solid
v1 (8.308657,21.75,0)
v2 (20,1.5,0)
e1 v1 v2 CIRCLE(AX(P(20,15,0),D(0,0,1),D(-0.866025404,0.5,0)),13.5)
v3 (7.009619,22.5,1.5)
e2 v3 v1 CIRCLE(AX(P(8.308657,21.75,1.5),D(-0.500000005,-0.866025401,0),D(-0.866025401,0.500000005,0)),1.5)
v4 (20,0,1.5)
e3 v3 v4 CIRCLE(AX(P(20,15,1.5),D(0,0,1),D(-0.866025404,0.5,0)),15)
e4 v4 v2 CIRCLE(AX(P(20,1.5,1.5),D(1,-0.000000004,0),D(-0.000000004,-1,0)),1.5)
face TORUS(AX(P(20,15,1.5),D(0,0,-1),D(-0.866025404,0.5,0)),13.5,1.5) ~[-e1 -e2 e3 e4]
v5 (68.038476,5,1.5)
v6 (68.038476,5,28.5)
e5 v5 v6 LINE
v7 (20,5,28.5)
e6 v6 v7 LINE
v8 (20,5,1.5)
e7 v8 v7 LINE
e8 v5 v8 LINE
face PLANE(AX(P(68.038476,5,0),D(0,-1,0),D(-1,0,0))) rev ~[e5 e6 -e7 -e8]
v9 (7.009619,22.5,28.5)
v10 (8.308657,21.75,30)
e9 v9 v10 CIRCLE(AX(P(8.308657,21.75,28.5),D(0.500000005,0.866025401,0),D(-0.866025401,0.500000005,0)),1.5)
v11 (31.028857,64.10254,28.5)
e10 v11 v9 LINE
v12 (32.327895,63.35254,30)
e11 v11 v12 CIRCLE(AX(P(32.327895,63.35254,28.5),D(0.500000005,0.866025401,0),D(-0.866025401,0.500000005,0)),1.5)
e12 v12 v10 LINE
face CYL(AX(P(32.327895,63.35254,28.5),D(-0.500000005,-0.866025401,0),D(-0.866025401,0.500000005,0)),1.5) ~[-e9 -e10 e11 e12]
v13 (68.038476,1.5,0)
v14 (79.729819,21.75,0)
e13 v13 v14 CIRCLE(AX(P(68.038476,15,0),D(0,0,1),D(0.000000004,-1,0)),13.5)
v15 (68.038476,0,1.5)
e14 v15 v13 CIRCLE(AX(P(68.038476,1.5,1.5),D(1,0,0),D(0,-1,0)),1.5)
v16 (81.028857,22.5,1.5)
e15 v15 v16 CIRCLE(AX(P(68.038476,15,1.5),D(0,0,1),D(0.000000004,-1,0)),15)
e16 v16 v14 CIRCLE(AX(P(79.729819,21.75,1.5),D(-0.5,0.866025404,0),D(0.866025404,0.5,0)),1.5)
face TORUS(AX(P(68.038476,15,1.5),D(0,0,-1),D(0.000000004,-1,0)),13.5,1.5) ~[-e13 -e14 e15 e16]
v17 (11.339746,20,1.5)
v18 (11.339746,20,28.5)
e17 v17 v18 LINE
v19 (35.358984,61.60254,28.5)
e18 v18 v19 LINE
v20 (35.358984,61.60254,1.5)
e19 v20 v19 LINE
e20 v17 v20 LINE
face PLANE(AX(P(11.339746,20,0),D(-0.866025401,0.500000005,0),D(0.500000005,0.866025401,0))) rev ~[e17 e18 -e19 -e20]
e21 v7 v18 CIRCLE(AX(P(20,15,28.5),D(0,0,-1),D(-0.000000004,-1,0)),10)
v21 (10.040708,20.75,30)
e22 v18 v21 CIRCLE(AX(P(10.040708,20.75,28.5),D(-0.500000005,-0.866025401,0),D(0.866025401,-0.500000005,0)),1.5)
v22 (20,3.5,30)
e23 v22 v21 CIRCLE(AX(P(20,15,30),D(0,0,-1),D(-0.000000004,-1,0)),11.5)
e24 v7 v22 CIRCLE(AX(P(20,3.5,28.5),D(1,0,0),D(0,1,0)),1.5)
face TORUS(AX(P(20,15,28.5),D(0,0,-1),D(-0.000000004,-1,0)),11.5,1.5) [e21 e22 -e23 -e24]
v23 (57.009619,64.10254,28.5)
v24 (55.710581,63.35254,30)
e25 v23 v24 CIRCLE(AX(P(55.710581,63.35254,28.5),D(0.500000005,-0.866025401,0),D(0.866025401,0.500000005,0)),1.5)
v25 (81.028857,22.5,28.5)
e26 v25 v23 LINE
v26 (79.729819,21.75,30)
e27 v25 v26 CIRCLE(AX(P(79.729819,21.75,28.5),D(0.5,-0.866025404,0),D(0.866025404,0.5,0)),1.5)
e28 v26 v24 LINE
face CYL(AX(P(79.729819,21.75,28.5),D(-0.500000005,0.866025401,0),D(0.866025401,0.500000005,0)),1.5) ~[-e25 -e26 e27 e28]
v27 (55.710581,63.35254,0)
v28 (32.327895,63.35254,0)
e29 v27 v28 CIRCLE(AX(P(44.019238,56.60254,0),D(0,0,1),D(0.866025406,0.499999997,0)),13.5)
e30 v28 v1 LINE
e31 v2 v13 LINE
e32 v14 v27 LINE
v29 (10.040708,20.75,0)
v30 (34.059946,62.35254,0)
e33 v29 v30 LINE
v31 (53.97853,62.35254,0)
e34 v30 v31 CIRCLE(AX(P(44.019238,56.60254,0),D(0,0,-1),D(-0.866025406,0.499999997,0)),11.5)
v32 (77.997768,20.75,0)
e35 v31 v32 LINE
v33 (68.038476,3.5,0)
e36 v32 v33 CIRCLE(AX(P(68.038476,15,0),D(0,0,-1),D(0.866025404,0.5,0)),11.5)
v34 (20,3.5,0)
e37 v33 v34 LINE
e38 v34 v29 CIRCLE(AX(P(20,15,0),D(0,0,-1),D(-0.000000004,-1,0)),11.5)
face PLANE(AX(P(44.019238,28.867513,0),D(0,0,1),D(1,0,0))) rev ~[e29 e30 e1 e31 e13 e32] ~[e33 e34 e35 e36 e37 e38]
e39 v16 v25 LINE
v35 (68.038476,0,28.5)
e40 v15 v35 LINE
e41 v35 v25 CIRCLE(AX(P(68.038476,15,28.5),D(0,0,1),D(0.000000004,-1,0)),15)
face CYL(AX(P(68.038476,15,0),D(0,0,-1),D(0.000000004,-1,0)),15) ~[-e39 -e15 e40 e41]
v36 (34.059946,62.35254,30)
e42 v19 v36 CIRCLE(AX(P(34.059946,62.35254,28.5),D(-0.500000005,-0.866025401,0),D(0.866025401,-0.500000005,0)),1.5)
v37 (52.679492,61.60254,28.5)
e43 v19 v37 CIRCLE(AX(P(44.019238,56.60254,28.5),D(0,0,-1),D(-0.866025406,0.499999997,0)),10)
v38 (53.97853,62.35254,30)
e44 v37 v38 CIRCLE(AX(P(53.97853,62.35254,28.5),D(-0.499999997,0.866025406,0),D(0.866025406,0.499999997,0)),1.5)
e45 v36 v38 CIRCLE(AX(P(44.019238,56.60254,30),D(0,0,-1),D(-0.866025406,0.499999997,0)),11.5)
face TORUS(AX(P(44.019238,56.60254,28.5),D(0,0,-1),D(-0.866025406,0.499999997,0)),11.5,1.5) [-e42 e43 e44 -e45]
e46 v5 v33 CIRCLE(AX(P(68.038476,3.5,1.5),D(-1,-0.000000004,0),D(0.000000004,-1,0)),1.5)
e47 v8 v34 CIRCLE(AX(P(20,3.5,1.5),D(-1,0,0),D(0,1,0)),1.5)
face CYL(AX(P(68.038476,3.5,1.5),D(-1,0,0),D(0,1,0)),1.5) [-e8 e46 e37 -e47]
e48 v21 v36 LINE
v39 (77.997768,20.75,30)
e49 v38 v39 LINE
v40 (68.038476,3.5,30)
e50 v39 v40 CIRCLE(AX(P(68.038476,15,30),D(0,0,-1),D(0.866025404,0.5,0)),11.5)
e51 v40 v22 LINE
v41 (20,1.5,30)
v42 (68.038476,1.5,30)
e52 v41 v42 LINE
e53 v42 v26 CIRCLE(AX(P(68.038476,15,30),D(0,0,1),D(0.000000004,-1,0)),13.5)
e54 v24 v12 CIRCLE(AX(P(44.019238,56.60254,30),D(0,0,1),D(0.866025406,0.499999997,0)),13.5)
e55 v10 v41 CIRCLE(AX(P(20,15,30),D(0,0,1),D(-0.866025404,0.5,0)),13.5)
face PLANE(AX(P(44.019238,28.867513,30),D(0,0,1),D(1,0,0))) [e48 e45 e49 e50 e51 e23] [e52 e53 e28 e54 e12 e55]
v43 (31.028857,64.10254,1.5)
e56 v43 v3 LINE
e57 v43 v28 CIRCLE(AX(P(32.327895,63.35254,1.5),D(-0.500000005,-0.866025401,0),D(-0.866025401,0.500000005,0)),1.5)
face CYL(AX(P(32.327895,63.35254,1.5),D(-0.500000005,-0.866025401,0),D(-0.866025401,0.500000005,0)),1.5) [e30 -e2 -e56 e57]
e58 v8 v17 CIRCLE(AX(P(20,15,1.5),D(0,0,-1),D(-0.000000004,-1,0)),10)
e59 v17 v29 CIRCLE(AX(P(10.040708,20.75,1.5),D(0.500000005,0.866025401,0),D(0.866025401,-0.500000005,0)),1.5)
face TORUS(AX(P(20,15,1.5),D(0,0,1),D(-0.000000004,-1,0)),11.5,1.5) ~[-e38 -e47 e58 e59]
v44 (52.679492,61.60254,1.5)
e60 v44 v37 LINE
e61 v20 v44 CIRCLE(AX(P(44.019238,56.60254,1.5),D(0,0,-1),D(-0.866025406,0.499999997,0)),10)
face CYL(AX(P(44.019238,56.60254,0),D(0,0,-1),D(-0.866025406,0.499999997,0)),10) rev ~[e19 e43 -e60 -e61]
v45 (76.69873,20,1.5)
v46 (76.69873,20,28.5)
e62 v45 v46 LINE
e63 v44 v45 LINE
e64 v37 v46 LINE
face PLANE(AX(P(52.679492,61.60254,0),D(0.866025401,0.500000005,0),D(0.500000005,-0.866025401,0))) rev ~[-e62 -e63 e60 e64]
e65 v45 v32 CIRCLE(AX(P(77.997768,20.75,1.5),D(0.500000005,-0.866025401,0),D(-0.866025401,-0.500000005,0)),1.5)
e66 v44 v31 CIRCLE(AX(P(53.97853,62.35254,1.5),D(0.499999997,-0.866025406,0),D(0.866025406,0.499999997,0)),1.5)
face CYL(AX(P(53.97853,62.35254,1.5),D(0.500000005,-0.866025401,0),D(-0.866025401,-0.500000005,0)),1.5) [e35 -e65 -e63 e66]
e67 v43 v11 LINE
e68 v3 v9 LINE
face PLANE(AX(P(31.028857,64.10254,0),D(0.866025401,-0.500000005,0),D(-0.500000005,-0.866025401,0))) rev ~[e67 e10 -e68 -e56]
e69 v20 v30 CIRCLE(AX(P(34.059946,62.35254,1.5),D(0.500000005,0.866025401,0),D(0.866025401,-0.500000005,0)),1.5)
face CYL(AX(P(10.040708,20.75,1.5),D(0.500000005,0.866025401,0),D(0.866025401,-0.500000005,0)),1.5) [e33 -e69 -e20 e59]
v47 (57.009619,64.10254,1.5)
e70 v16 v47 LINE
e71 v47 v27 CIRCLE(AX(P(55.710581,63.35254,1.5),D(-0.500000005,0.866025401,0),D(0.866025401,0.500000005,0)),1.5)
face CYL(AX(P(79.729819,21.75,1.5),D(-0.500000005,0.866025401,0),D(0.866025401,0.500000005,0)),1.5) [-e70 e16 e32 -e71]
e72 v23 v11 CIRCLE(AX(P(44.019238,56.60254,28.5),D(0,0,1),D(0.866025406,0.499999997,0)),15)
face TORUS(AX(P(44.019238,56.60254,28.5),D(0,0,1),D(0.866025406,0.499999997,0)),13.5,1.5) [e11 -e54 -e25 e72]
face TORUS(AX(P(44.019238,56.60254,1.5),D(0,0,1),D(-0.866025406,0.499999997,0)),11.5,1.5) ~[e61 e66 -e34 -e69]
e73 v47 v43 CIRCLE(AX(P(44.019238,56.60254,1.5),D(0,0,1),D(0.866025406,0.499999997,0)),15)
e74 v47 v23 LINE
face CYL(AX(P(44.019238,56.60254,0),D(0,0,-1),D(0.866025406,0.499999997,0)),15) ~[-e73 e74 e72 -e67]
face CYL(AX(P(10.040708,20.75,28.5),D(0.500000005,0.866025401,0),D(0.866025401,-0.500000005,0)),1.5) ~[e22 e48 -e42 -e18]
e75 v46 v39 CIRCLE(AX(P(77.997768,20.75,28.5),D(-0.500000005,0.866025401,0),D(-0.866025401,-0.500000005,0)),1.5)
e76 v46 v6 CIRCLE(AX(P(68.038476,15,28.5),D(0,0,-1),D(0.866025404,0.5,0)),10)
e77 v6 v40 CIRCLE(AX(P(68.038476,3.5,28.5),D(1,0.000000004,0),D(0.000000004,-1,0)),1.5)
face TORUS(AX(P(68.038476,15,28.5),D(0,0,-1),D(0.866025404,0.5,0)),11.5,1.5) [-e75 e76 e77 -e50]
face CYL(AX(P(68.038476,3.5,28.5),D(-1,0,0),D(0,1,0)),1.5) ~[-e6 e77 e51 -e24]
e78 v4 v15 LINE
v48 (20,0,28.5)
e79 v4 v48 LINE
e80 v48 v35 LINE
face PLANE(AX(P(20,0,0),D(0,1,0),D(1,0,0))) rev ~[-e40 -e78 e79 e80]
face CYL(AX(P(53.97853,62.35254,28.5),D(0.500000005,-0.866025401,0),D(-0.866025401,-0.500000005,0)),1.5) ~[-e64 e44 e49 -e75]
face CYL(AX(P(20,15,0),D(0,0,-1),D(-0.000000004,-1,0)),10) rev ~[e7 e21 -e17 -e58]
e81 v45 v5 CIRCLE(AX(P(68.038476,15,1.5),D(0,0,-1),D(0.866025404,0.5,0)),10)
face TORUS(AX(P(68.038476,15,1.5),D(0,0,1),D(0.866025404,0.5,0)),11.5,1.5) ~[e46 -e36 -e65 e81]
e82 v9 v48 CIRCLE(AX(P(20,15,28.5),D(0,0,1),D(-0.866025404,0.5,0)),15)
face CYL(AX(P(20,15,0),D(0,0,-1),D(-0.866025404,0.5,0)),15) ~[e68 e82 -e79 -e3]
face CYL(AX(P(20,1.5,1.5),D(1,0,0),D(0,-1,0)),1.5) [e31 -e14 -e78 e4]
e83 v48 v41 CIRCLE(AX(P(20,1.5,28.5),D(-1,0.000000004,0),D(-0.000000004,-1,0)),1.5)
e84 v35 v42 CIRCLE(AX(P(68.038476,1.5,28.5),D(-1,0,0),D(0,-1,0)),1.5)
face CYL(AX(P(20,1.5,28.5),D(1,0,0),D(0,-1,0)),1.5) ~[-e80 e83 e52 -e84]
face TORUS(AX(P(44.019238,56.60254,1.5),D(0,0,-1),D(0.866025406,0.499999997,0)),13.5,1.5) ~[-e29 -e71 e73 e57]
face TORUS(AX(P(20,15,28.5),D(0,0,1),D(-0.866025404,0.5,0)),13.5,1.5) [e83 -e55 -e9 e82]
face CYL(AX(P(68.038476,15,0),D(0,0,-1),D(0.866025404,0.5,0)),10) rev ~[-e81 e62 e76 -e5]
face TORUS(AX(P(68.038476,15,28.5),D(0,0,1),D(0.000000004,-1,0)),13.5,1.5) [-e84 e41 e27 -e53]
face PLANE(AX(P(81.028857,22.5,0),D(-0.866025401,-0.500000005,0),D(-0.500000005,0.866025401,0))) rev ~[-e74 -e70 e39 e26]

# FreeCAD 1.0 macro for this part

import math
import FreeCAD as App
import Part
import Sketcher
Q = App.Units.Quantity


def edges_at(feature, points):
    """Names of the edges that pass closest to the given points."""
    edges = feature.Shape.Edges
    near = lambda p: min(range(len(edges)), key=lambda i: edges[i].distToShape(Part.Vertex(*p))[0])
    return sorted({f"Edge{near(p) + 1}" for p in points})

doc = App.newDocument("Part")
body = doc.addObject("PartDesign::Body", "Body")

# Sketch on XY plane
sketch1 = body.newObject("Sketcher::SketchObject", "Sketch")
sketch1.AttachmentSupport = (doc.getObject("XY_Plane"), [""])
sketch1.MapMode = "FlatFace"
sketch1.addGeometry(Part.ArcOfCircle(Part.Circle(App.Vector(20, 15, 0), App.Vector(0, 0, 1), 15), math.radians(150), math.radians(270)), False)
sketch1.addGeometry(Part.LineSegment(App.Vector(20, 0, 0), App.Vector(68, 0, 0)), False)
sketch1.addGeometry(Part.ArcOfCircle(Part.Circle(App.Vector(68, 15, 0), App.Vector(0, 0, 1), 15), math.radians(-90), math.radians(30)), False)
sketch1.addGeometry(Part.LineSegment(App.Vector(81, 22, 0), App.Vector(57, 64, 0)), False)
sketch1.addGeometry(Part.ArcOfCircle(Part.Circle(App.Vector(44, 57, 0), App.Vector(0, 0, 1), 15), math.radians(30), math.radians(150)), False)
sketch1.addGeometry(Part.LineSegment(App.Vector(31, 64, 0), App.Vector(7, 22, 0)), False)
sketch1.addGeometry(Part.ArcOfCircle(Part.Circle(App.Vector(20, 15, 0), App.Vector(0, 0, 1), 10), math.radians(150), math.radians(270)), False)
sketch1.addGeometry(Part.LineSegment(App.Vector(11, 20, 0), App.Vector(35, 62, 0)), False)
sketch1.addGeometry(Part.ArcOfCircle(Part.Circle(App.Vector(44, 57, 0), App.Vector(0, 0, 1), 10), math.radians(30), math.radians(150)), False)
sketch1.addGeometry(Part.LineSegment(App.Vector(53, 62, 0), App.Vector(77, 20, 0)), False)
sketch1.addGeometry(Part.ArcOfCircle(Part.Circle(App.Vector(68, 15, 0), App.Vector(0, 0, 1), 10), math.radians(-90), math.radians(30)), False)
sketch1.addGeometry(Part.LineSegment(App.Vector(68, 5, 0), App.Vector(20, 5, 0)), False)
sketch1.addConstraint(Sketcher.Constraint("Tangent", 0, 2, 1, 1))
sketch1.addConstraint(Sketcher.Constraint("Tangent", 1, 2, 2, 1))
sketch1.addConstraint(Sketcher.Constraint("Tangent", 2, 2, 3, 1))
sketch1.addConstraint(Sketcher.Constraint("Tangent", 3, 2, 4, 1))
sketch1.addConstraint(Sketcher.Constraint("Tangent", 4, 2, 5, 1))
sketch1.addConstraint(Sketcher.Constraint("Tangent", 5, 2, 0, 1))
sketch1.addConstraint(Sketcher.Constraint("Tangent", 6, 1, 7, 1))
sketch1.addConstraint(Sketcher.Constraint("Tangent", 7, 2, 8, 2))
sketch1.addConstraint(Sketcher.Constraint("Tangent", 8, 1, 9, 1))
sketch1.addConstraint(Sketcher.Constraint("Tangent", 9, 2, 10, 2))
sketch1.addConstraint(Sketcher.Constraint("Tangent", 10, 1, 11, 1))
sketch1.addConstraint(Sketcher.Constraint("Tangent", 11, 2, 6, 2))
sketch1.addConstraint(Sketcher.Constraint("Horizontal", 1))
sketch1.addConstraint(Sketcher.Constraint("Horizontal", 11))
sketch1.addConstraint(Sketcher.Constraint("Coincident", 6, 3, 0, 3))
sketch1.addConstraint(Sketcher.Constraint("Coincident", 8, 3, 4, 3))
sketch1.addConstraint(Sketcher.Constraint("Coincident", 10, 3, 2, 3))
sketch1.addConstraint(Sketcher.Constraint("Equal", 0, 2))
sketch1.addConstraint(Sketcher.Constraint("Equal", 2, 4))
sketch1.addConstraint(Sketcher.Constraint("Equal", 6, 8))
sketch1.addConstraint(Sketcher.Constraint("PointOnObject", 0, 2, -1))
sketch1.addConstraint(Sketcher.Constraint("Horizontal", 3, 2, 4, 2))
sketch1.addConstraint(Sketcher.Constraint("Radius", 0, 15.0))
sketch1.addConstraint(Sketcher.Constraint("Radius", 6, 10.0))
sketch1.addConstraint(Sketcher.Constraint("Angle", 3, Q("120 deg")))
sketch1.addConstraint(Sketcher.Constraint("DistanceX", -1, 1, 0, 3, 20.0))
sketch1.addConstraint(Sketcher.Constraint("DistanceX", 1, 1, 1, 2, 48.038476))
pad1 = body.newObject("PartDesign::Pad", "Pad")
pad1.Profile = sketch1
pad1.Length = 30
doc.recompute()

fillet = body.newObject("PartDesign::Fillet", "Fillet")
fillet.Base = (pad1, edges_at(pad1, [
    (31.029, 64.103, 15),
    (7.01, 22.5, 15),
    (19.019, 43.301, 0),
    (19.019, 43.301, 30),
    (11.34, 20, 15),
    (35.359, 61.603, 15),
    (23.349, 40.801, 0),
    (23.349, 40.801, 30),
]))
fillet.Radius = 1.5

doc.recompute()
